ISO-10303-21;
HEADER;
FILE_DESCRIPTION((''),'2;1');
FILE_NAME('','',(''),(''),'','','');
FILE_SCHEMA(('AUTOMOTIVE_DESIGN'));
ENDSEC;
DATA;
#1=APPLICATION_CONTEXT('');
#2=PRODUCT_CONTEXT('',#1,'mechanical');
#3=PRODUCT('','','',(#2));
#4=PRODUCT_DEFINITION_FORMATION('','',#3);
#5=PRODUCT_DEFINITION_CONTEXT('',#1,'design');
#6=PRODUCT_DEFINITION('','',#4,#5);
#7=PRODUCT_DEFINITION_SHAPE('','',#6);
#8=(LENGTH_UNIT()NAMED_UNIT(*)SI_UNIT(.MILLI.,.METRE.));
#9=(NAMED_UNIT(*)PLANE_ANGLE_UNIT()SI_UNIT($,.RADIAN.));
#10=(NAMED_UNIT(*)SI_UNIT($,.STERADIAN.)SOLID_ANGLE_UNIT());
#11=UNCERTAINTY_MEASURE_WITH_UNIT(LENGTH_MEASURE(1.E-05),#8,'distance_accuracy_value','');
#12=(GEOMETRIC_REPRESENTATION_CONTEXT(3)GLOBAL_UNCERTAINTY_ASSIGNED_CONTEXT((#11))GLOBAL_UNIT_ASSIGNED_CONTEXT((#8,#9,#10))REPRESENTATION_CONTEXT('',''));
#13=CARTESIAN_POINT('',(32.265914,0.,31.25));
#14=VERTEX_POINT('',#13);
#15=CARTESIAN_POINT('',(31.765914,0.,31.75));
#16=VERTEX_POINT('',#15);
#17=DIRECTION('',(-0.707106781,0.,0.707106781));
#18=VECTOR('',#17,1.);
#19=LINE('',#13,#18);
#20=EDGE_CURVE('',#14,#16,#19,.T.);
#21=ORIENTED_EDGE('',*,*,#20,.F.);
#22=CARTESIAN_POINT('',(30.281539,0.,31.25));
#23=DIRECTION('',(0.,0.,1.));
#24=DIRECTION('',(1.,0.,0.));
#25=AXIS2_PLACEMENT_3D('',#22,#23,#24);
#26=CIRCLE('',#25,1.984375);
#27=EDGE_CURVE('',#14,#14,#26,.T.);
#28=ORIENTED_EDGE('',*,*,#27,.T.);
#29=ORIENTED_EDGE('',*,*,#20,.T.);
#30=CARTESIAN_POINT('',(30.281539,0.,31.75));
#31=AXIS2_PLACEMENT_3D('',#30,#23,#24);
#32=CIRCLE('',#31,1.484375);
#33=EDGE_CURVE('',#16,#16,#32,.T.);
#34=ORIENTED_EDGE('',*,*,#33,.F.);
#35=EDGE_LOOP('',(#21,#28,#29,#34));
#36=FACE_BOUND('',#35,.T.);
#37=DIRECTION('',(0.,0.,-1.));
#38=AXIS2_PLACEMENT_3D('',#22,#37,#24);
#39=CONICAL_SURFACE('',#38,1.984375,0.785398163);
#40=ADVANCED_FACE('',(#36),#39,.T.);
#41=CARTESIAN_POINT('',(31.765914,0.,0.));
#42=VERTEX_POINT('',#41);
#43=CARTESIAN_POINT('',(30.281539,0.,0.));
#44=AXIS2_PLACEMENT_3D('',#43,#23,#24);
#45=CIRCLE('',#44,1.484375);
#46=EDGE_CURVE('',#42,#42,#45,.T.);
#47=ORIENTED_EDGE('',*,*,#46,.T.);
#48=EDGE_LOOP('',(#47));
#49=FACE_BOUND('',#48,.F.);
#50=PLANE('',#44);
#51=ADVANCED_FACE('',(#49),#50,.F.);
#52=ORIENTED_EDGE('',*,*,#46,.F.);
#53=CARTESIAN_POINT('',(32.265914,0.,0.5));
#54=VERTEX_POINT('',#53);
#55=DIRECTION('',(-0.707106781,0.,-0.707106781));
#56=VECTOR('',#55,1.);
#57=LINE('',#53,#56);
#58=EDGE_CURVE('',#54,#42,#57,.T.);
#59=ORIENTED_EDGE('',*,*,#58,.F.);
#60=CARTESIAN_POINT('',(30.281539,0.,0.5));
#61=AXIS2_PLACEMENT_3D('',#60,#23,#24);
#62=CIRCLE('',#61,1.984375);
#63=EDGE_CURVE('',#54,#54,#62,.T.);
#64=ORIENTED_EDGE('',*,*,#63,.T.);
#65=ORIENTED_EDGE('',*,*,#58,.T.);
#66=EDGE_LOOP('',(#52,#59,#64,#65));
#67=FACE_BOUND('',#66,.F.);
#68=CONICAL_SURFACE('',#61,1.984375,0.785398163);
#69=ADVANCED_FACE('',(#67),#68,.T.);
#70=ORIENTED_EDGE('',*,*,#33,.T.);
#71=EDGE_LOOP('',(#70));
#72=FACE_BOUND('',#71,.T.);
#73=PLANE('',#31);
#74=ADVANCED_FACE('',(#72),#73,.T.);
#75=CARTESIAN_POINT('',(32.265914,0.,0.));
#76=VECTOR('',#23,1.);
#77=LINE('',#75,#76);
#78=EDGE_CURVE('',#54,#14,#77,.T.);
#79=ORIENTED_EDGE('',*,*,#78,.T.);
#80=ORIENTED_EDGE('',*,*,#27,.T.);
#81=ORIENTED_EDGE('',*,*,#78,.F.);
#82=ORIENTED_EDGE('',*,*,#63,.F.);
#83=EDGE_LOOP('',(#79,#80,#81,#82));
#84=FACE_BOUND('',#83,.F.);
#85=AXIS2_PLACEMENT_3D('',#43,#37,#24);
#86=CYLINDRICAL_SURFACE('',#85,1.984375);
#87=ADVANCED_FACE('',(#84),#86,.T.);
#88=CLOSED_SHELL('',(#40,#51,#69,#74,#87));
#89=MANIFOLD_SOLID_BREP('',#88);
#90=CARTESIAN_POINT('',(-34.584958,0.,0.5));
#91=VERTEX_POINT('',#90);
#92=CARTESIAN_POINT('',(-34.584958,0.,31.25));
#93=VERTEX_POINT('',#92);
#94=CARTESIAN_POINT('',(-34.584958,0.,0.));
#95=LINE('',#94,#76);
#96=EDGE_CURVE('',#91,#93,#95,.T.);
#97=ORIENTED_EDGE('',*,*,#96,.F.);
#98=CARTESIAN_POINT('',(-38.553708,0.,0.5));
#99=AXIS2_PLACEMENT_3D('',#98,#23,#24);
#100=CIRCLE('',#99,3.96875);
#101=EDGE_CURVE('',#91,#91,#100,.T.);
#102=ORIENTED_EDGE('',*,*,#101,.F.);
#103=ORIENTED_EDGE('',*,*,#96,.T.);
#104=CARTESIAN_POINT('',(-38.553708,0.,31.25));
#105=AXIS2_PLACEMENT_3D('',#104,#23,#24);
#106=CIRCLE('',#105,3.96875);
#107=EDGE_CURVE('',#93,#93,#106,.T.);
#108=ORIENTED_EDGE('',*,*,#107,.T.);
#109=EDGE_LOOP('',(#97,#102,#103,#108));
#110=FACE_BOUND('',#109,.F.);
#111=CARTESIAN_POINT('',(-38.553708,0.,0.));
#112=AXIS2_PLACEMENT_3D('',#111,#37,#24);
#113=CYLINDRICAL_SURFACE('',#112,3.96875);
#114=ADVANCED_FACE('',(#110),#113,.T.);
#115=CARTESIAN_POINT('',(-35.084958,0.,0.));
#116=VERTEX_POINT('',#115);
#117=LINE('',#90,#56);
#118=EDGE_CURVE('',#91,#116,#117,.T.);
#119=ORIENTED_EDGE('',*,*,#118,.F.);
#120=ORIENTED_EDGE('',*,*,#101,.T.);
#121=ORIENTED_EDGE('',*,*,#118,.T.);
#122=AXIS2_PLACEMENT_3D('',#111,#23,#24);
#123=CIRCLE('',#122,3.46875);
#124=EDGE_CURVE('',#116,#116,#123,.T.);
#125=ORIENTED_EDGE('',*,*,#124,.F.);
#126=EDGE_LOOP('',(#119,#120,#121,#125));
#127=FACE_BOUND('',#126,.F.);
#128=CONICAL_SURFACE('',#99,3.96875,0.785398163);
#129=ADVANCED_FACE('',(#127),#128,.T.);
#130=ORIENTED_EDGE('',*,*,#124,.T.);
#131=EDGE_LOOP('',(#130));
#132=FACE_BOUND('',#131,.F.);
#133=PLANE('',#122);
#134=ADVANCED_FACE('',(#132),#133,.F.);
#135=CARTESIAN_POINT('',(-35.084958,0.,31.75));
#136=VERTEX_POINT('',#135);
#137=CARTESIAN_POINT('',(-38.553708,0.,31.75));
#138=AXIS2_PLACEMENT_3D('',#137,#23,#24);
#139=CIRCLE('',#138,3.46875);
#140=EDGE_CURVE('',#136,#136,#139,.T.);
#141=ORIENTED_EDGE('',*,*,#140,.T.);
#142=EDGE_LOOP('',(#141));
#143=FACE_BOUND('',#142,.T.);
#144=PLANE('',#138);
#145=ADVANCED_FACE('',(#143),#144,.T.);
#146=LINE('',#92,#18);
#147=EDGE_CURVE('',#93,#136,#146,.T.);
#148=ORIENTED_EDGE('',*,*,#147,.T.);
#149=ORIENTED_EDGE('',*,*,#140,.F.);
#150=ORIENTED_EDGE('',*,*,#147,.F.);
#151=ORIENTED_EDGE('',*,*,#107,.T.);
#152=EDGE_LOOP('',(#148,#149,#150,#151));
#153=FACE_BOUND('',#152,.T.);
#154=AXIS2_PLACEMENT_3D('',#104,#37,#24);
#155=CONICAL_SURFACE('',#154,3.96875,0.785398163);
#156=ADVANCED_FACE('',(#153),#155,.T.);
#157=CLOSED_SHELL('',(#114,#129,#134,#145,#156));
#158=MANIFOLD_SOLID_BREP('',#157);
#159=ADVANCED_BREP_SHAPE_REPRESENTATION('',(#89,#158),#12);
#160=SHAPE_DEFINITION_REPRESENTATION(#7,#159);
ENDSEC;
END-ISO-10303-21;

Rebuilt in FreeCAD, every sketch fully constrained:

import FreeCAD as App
import Part
import Sketcher

V = App.Vector
Q = App.Units.Quantity


def edges_at(feature, points):
    """Names of the edges that pass closest to the given points."""
    edges = feature.Shape.Edges
    near = lambda p: min(range(len(edges)), key=lambda i: edges[i].distToShape(Part.Vertex(*p))[0])
    return sorted({f"Edge{near(p) + 1}" for p in points})

doc = App.newDocument("Part")
body = doc.addObject("PartDesign::Body", "Body")

# Sketch on XY plane
sketch1 = body.newObject("Sketcher::SketchObject", "Sketch")
sketch1.AttachmentSupport = (doc.getObject("XY_Plane"), [""])
sketch1.MapMode = "FlatFace"
sketch1.addGeometry(Part.Circle(V(-38.553708, 0, 0), V(0, 0, 1), 3.96875), False)
sketch1.addConstraint([
    Sketcher.Constraint("PointOnObject", 0, 3, -1),
    Sketcher.Constraint("Diameter", 0, Q("0.3125 in")),
    Sketcher.Constraint("DistanceX", 0, 3, -1, 1, 38.553708),
])
pad1 = body.newObject("PartDesign::Pad", "Pad")
pad1.Profile = sketch1
pad1.Length = Q("1.25 in")
doc.recompute()

chamfer = body.newObject("PartDesign::Chamfer", "Chamfer")
chamfer.Base = (pad1, edges_at(pad1, [(-42.522, 0, 31.75), (-42.522, 0, 0)]))
chamfer.Size = 0.5
body2 = doc.addObject("PartDesign::Body", "Body001")

# Sketch on XY plane
sketch2 = body2.newObject("Sketcher::SketchObject", "Sketch001")
sketch2.AttachmentSupport = (doc.getObject("XY_Plane001"), [""])
sketch2.MapMode = "FlatFace"
sketch2.addGeometry(Part.Circle(V(30.281539, 0, 0), V(0, 0, 1), 1.984375), False)
sketch2.addConstraint([
    Sketcher.Constraint("PointOnObject", 0, 3, -1),
    Sketcher.Constraint("Diameter", 0, Q("0.15625 in")),
    Sketcher.Constraint("DistanceX", -1, 1, 0, 3, 30.281539),
])
pad2 = body2.newObject("PartDesign::Pad", "Pad001")
pad2.Profile = sketch2
pad2.Length = Q("1.25 in")
doc.recompute()

chamfer2 = body2.newObject("PartDesign::Chamfer", "Chamfer001")
chamfer2.Base = (pad2, edges_at(pad2, [(28.297, 0, 31.75), (28.297, 0, 0)]))
chamfer2.Size = 0.5

doc.recompute()
